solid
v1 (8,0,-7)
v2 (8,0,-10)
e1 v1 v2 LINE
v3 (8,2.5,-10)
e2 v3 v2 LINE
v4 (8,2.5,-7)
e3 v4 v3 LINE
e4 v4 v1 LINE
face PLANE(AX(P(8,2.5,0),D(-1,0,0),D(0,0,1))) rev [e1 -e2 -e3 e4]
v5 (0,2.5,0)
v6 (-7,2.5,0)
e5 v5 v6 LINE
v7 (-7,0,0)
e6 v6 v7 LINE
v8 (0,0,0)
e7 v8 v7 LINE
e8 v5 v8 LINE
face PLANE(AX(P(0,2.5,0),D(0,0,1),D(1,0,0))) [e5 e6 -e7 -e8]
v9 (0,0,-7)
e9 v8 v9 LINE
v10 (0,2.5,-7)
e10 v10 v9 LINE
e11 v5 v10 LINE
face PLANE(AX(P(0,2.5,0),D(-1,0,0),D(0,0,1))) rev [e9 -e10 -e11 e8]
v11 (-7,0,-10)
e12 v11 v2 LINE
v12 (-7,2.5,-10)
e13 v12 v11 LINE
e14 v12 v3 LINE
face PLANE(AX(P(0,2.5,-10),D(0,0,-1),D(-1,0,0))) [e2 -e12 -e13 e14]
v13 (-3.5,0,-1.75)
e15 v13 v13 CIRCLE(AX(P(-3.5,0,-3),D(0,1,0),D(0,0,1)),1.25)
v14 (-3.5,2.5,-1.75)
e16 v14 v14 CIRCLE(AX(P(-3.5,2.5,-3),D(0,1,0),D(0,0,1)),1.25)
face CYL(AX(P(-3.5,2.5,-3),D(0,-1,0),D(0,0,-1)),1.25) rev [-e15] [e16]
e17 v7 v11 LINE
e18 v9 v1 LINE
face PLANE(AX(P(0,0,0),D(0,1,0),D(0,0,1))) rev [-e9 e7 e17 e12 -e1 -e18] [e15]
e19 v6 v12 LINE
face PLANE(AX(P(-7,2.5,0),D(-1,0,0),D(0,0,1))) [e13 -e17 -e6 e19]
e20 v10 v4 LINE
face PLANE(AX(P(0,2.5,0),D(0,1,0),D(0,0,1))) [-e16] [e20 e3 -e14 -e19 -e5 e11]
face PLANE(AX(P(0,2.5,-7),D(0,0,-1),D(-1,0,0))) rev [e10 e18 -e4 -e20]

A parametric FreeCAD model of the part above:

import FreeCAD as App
import Part
import Sketcher
from FreeCAD import Vector


def add_polygon(sketch, points):
    """Adds a closed chain of lines whose ends are joined by coincident constraints."""
    first, n = sketch.GeometryCount, len(points)
    for a, b in zip(points, points[1:] + points[:1]):
        sketch.addGeometry(Part.LineSegment(App.Vector(*a, 0), App.Vector(*b, 0)), False)
    for i in range(n):
        sketch.addConstraint(Sketcher.Constraint("Coincident", first + i, 2, first + (i + 1) % n, 1))

doc = App.newDocument("Part")
body = doc.addObject("PartDesign::Body", "Body")

# Sketch on XZ plane
sketch1 = body.newObject("Sketcher::SketchObject", "Sketch")
sketch1.AttachmentSupport = (doc.getObject("XZ_Plane"), [""])
sketch1.MapMode = "FlatFace"
add_polygon(sketch1, [(-7, 0), (0, 0), (0, -7), (8, -7), (8, -10), (-7, -10)])  # lines 0-5
sketch1.addGeometry(Part.Circle(Vector(-3.5, -3, 0), Vector(0, 0, 1), 1.2), False)  # 6
sketch1.addConstraint([
    Sketcher.Constraint("Horizontal", 0),
    Sketcher.Constraint("Vertical", 1),
    Sketcher.Constraint("Horizontal", 2),
    Sketcher.Constraint("Vertical", 3),
    Sketcher.Constraint("Horizontal", 4),
    Sketcher.Constraint("Vertical", 5),
    Sketcher.Constraint("Coincident", 0, 2, -1, 1),
    Sketcher.Constraint("Equal", 0, 1),
    Sketcher.Constraint("Diameter", 6, 2.5),
    Sketcher.Constraint("DistanceX", 0, 1, 0, 2, 7.0),
    Sketcher.Constraint("DistanceX", 2, 1, 2, 2, 8.0),
    Sketcher.Constraint("DistanceY", 3, 2, 3, 1, 3.0),
    Sketcher.Constraint("DistanceY", 6, 3, -1, 1, 3.0),
    Sketcher.Constraint("DistanceX", 6, 3, -1, 1, 3.5),
])
pad1 = body.newObject("PartDesign::Pad", "Pad")
pad1.Profile = sketch1
pad1.Length = 2.5
pad1.Reversed = True

doc.recompute()
